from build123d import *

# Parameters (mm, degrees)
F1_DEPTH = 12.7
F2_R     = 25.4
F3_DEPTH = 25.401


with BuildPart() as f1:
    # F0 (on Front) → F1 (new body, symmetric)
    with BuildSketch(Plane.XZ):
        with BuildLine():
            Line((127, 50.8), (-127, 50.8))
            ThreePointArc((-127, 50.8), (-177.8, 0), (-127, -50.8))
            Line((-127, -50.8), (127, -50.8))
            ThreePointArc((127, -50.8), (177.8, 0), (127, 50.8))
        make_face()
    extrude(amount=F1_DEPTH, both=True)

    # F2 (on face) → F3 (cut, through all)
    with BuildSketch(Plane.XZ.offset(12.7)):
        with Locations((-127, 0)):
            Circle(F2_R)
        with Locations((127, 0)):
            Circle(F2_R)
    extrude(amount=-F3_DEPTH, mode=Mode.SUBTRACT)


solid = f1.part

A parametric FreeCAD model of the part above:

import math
import FreeCAD as App
import Part
import Sketcher
from FreeCAD import Vector
Q = App.Units.Quantity

doc = App.newDocument("Part")
params = doc.addObject("Spreadsheet::Sheet", "Params")
for row, (alias, value) in enumerate([
    ("sketch1_radius", "2 in"),
    ("sketch1_width", "10 in"),
    ("pad1_length", "1 in"),
    ("sketch2_diameter", "2 in"),
], start=1):
    params.set(f"A{row}", alias)
    params.set(f"B{row}", "=" + value)
    params.setAlias(f"B{row}", alias)

body = doc.addObject("PartDesign::Body", "Body")

# Sketch on XZ plane
sketch1 = body.newObject("Sketcher::SketchObject", "Sketch")
sketch1.AttachmentSupport = (doc.getObject("XZ_Plane"), [""])
sketch1.MapMode = "FlatFace"
sketch1.addGeometry(Part.LineSegment(Vector(127, 51, 0), Vector(-127, 51, 0)), False)
sketch1.addGeometry(Part.ArcOfCircle(Part.Circle(Vector(-127, 0, 0), Vector(0, 0, 1), 51), math.radians(90), math.radians(270)), False)
sketch1.addGeometry(Part.LineSegment(Vector(-127, -51, 0), Vector(127, -51, 0)), False)
sketch1.addGeometry(Part.ArcOfCircle(Part.Circle(Vector(127, 0, 0), Vector(0, 0, 1), 51), math.radians(-90), math.radians(90)), False)
sketch1.addConstraint(Sketcher.Constraint("Tangent", 0, 2, 1, 1))
sketch1.addConstraint(Sketcher.Constraint("Tangent", 1, 2, 2, 1))
sketch1.addConstraint(Sketcher.Constraint("Tangent", 2, 2, 3, 1))
sketch1.addConstraint(Sketcher.Constraint("Tangent", 3, 2, 0, 1))
sketch1.addConstraint(Sketcher.Constraint("Horizontal", 0))
sketch1.addConstraint(Sketcher.Constraint("Horizontal", 2))
sketch1.addConstraint(Sketcher.Constraint("Symmetric", 1, 3, 3, 3, -1, 1))
sketch1.addConstraint(Sketcher.Constraint("Radius", 1, Q("2 in")))
sketch1.addConstraint(Sketcher.Constraint("DistanceX", 0, 2, 0, 1, Q("10 in")))
sketch1.setExpression("Constraints[7]", "Params.sketch1_radius")
sketch1.setExpression("Constraints[8]", "Params.sketch1_width")
pad1 = body.newObject("PartDesign::Pad", "Pad")
pad1.Profile = sketch1
pad1.setExpression("Length", "Params.pad1_length")
pad1.Midplane = True

# Sketch on XZ plane
sketch2 = body.newObject("Sketcher::SketchObject", "Sketch001")
sketch2.AttachmentSupport = (doc.getObject("XZ_Plane"), [""])
sketch2.MapMode = "FlatFace"
sketch2.AttachmentOffset = App.Placement(Vector(0, 0, 0.5 * 25.4), App.Rotation())
sketch2.addGeometry(Part.Circle(Vector(-127, 0, 0), Vector(0, 0, 1), 25), False)
sketch2.addGeometry(Part.Circle(Vector(127, 0, 0), Vector(0, 0, 1), 25), False)
sketch2.addConstraint(Sketcher.Constraint("Equal", 0, 1))
sketch2.addConstraint(Sketcher.Constraint("Symmetric", 0, 3, 1, 3, -1, 1))
sketch2.addConstraint(Sketcher.Constraint("PointOnObject", 0, 3, -1))
sketch2.addConstraint(Sketcher.Constraint("Diameter", 0, Q("2 in")))
sketch2.addConstraint(Sketcher.Constraint("DistanceX", 0, 3, -1, 1, Q("5 in")))
sketch2.setExpression("Constraints[3]", "Params.sketch2_diameter")
pocket1 = body.newObject("PartDesign::Pocket", "Pocket")
pocket1.Profile = sketch2
pocket1.Type = "ThroughAll"

doc.recompute()
